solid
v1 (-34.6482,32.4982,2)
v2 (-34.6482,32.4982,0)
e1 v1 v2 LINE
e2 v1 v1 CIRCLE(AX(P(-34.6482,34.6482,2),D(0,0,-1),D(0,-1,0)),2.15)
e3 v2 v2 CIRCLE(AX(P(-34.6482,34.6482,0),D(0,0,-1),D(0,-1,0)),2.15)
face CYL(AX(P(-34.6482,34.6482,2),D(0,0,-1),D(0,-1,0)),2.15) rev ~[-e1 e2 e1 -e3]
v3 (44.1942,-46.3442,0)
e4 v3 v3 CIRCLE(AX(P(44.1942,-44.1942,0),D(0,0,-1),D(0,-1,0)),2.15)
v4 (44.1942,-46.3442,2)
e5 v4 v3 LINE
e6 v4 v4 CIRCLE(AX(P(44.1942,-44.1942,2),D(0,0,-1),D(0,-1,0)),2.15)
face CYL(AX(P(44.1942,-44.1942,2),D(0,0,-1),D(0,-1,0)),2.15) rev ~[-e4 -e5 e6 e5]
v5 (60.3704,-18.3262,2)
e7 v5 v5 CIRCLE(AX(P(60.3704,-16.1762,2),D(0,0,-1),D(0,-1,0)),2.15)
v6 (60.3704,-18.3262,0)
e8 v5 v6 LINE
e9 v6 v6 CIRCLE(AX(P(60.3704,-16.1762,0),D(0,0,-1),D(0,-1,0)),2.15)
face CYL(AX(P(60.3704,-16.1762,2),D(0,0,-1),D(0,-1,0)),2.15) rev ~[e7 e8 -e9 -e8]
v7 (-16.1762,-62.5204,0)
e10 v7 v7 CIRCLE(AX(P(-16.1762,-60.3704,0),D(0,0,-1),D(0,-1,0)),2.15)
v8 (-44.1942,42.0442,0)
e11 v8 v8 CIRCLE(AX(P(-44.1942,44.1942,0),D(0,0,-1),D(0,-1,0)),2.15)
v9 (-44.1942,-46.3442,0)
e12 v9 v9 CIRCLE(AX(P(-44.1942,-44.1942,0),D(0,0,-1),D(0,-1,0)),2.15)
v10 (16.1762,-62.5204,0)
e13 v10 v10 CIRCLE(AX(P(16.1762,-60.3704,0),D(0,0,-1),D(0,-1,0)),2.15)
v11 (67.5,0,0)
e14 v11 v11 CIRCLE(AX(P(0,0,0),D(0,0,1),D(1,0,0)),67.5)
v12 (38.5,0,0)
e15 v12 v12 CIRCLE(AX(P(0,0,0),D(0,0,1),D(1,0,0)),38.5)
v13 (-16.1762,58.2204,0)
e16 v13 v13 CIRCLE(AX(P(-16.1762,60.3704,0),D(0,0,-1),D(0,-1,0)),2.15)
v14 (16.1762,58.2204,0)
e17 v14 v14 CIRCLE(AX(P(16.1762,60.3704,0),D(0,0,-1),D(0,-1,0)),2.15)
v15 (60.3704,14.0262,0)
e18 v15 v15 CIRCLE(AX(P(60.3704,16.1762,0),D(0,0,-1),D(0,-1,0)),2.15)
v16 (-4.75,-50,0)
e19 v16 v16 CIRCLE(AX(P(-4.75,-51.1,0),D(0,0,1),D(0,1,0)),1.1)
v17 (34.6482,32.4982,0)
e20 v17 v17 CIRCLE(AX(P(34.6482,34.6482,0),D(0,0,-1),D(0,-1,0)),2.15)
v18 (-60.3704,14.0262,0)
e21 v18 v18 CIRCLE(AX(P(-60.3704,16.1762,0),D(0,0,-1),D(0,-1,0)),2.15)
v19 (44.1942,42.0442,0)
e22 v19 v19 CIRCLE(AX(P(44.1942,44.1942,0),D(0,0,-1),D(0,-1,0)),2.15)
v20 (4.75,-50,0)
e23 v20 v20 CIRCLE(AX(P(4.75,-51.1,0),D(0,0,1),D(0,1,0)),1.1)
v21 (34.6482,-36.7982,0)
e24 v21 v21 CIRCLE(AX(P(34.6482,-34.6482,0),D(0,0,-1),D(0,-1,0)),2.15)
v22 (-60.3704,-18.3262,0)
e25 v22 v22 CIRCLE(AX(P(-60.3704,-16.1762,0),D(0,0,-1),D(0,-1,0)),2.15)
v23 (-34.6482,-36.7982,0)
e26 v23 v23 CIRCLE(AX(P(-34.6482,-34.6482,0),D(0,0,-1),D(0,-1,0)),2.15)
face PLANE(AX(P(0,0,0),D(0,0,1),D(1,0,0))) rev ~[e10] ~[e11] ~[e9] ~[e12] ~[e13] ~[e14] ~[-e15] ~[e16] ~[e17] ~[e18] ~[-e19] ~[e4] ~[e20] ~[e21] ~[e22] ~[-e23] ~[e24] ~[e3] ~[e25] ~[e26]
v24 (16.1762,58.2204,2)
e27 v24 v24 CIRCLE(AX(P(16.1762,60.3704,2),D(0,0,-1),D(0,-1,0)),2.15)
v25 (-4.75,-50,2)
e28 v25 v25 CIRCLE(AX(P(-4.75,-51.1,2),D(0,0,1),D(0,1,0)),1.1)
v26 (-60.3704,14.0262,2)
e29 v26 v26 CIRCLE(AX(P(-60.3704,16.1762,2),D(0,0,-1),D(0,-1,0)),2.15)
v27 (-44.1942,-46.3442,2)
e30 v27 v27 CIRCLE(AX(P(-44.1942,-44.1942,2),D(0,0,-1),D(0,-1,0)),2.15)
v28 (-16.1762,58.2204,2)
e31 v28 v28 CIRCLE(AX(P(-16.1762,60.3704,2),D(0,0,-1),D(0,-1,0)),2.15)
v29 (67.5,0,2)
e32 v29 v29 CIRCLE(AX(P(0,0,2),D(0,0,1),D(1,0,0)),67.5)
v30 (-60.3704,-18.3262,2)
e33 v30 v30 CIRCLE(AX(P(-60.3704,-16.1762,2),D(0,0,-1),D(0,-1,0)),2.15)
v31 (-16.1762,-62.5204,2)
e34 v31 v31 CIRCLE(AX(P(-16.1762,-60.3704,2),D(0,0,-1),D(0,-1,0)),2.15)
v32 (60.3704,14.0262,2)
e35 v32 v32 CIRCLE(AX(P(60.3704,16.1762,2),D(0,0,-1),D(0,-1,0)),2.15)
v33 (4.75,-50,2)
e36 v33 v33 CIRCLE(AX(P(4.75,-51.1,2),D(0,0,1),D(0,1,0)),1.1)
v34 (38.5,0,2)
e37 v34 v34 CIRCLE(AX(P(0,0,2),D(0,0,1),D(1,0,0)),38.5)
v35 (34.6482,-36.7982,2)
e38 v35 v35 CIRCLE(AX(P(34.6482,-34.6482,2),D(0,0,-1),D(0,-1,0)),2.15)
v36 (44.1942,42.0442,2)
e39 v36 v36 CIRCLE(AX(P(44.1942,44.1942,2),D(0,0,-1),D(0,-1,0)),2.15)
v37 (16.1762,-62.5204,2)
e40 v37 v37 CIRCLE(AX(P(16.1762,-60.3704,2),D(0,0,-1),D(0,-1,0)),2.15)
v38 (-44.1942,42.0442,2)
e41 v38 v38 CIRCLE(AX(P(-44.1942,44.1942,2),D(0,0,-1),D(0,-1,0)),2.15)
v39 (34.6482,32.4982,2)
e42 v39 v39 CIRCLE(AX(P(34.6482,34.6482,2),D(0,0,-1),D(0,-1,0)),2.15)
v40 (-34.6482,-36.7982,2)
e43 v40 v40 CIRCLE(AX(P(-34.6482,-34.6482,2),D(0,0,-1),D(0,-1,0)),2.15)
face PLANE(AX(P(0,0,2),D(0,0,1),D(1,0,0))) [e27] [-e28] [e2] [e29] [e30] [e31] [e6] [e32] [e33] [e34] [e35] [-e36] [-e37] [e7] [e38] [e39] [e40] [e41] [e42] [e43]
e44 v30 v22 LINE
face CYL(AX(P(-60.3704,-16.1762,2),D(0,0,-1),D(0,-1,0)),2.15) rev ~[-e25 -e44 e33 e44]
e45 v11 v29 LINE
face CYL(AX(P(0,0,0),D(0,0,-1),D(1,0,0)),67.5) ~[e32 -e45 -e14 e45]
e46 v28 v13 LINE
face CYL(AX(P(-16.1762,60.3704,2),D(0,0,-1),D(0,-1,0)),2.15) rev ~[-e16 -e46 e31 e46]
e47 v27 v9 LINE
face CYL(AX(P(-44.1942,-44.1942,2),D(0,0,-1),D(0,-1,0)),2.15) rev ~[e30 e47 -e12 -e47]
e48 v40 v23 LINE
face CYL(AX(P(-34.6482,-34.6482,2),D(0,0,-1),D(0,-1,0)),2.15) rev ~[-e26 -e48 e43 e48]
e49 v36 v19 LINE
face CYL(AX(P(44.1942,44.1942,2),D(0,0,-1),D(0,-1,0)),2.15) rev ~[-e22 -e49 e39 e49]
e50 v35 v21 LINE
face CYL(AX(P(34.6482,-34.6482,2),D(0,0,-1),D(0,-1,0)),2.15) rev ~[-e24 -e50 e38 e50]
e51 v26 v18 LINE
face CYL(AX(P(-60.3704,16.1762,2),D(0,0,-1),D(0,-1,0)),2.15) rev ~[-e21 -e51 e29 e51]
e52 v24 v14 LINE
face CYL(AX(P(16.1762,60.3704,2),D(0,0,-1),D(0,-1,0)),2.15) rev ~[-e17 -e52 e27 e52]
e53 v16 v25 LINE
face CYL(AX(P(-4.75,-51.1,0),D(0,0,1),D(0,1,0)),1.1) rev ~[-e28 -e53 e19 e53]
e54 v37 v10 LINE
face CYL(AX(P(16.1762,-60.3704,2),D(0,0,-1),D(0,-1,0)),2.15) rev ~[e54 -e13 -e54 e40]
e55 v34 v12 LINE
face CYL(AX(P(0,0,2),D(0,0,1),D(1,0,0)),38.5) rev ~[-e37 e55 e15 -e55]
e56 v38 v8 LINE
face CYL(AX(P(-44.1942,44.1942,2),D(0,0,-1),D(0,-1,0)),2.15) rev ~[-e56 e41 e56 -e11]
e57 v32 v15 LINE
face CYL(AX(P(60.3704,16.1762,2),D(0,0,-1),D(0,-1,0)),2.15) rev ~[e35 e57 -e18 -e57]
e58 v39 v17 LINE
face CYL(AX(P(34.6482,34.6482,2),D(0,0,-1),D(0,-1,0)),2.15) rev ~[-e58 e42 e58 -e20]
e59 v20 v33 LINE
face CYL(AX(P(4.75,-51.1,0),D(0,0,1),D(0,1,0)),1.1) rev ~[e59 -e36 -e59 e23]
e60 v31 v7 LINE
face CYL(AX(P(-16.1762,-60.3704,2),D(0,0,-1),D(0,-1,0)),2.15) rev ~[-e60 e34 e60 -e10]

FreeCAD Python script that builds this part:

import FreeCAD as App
import Part
import Sketcher

V = App.Vector

doc = App.newDocument("Part")
body = doc.addObject("PartDesign::Body", "Body")

# Sketch on XY plane
sketch1 = body.newObject("Sketcher::SketchObject", "Sketch")
sketch1.AttachmentSupport = (doc.getObject("XY_Plane"), [""])
sketch1.MapMode = "FlatFace"
sketch1.addGeometry(Part.Circle(V(0, 0, 0), V(0, 0, 1), 68), False)
sketch1.addConstraint(Sketcher.Constraint("Coincident", 0, 3, -1, 1))
sketch1.addConstraint(Sketcher.Constraint("Diameter", 0, 135.0))
pad1 = body.newObject("PartDesign::Pad", "Pad")
pad1.Profile = sketch1
pad1.Length = 2

# Sketch on XY plane
sketch2 = body.newObject("Sketcher::SketchObject", "Sketch001")
sketch2.AttachmentSupport = (doc.getObject("XY_Plane"), [""])
sketch2.MapMode = "FlatFace"
sketch2.AttachmentOffset = App.Placement(V(0, 0, 2), App.Rotation())
sketch2.addGeometry(Part.Circle(V(0, 0, 0), V(0, 0, 1), 38), False)
sketch2.addConstraint(Sketcher.Constraint("Coincident", 0, 3, -1, 1))
sketch2.addConstraint(Sketcher.Constraint("Diameter", 0, 77.0))
pocket1 = body.newObject("PartDesign::Pocket", "Pocket")
pocket1.Profile = sketch2
pocket1.Type = "ThroughAll"

# Sketch on XY plane
sketch3 = body.newObject("Sketcher::SketchObject", "Sketch002")
sketch3.AttachmentSupport = (doc.getObject("XY_Plane"), [""])
sketch3.MapMode = "FlatFace"
sketch3.AttachmentOffset = App.Placement(V(0, 0, 2), App.Rotation())
sketch3.addGeometry(Part.Circle(V(16.2, 60.4, 0), V(0, 0, 1), 2.1), False)
sketch3.addGeometry(Part.Circle(V(-16.2, 60.4, 0), V(0, 0, 1), 2.1), False)
sketch3.addGeometry(Part.Circle(V(-44.2, 44.2, 0), V(0, 0, 1), 2.1), False)
sketch3.addGeometry(Part.Circle(V(-60.4, 16.2, 0), V(0, 0, 1), 2.1), False)
sketch3.addGeometry(Part.Circle(V(-60.4, -16.2, 0), V(0, 0, 1), 2.1), False)
sketch3.addGeometry(Part.Circle(V(-44.2, -44.2, 0), V(0, 0, 1), 2.1), False)
sketch3.addGeometry(Part.Circle(V(-16.2, -60.4, 0), V(0, 0, 1), 2.1), False)
sketch3.addGeometry(Part.Circle(V(16.2, -60.4, 0), V(0, 0, 1), 2.1), False)
sketch3.addGeometry(Part.Circle(V(44.2, -44.2, 0), V(0, 0, 1), 2.1), False)
sketch3.addGeometry(Part.Circle(V(60.4, -16.2, 0), V(0, 0, 1), 2.1), False)
sketch3.addGeometry(Part.Circle(V(60.4, 16.2, 0), V(0, 0, 1), 2.1), False)
sketch3.addGeometry(Part.Circle(V(44.2, 44.2, 0), V(0, 0, 1), 2.1), False)
sketch3.addConstraint(Sketcher.Constraint("Equal", 0, 1))
sketch3.addConstraint(Sketcher.Constraint("Equal", 1, 2))
sketch3.addConstraint(Sketcher.Constraint("Equal", 2, 3))
sketch3.addConstraint(Sketcher.Constraint("Equal", 3, 4))
sketch3.addConstraint(Sketcher.Constraint("Equal", 4, 5))
sketch3.addConstraint(Sketcher.Constraint("Equal", 5, 6))
sketch3.addConstraint(Sketcher.Constraint("Equal", 6, 7))
sketch3.addConstraint(Sketcher.Constraint("Equal", 7, 8))
sketch3.addConstraint(Sketcher.Constraint("Equal", 8, 9))
sketch3.addConstraint(Sketcher.Constraint("Equal", 9, 10))
sketch3.addConstraint(Sketcher.Constraint("Equal", 10, 11))
sketch3.addConstraint(Sketcher.Constraint("Symmetric", 0, 3, 6, 3, -1, 1))
sketch3.addConstraint(Sketcher.Constraint("Symmetric", 1, 3, 7, 3, -1, 1))
sketch3.addConstraint(Sketcher.Constraint("Symmetric", 2, 3, 8, 3, -1, 1))
sketch3.addConstraint(Sketcher.Constraint("Symmetric", 3, 3, 9, 3, -1, 1))
sketch3.addConstraint(Sketcher.Constraint("Symmetric", 4, 3, 10, 3, -1, 1))
sketch3.addConstraint(Sketcher.Constraint("Symmetric", 5, 3, 11, 3, -1, 1))
sketch3.addConstraint(Sketcher.Constraint("Symmetric", 0, 3, 1, 3, -2))
sketch3.addConstraint(Sketcher.Constraint("Symmetric", 5, 3, 8, 3, -2))
sketch3.addConstraint(Sketcher.Constraint("Symmetric", 4, 3, 9, 3, -2))
sketch3.addConstraint(Sketcher.Constraint("Diameter", 0, 4.3))
sketch3.addConstraint(Sketcher.Constraint("DistanceX", 2, 3, 1, 3, 28.018))
sketch3.addConstraint(Sketcher.Constraint("DistanceY", 3, 3, 2, 3, 28.018))
sketch3.addConstraint(Sketcher.Constraint("DistanceX", -1, 1, 0, 3, 16.1762))
sketch3.addConstraint(Sketcher.Constraint("DistanceY", -1, 1, 0, 3, 60.3704))
sketch3.addConstraint(Sketcher.Constraint("DistanceY", -1, 1, 2, 3, 44.1942))
sketch3.addConstraint(Sketcher.Constraint("DistanceX", 3, 3, -1, 1, 60.3704))
doc.recompute()
hole = body.newObject("PartDesign::Hole", "Hole")
hole.Profile = sketch3
hole.ThreadType = "None"
hole.Diameter = 4.3
hole.DepthType = "ThroughAll"

# Sketch on XY plane
sketch4 = body.newObject("Sketcher::SketchObject", "Sketch003")
sketch4.AttachmentSupport = (doc.getObject("XY_Plane"), [""])
sketch4.MapMode = "FlatFace"
sketch4.AttachmentOffset = App.Placement(V(0, 0, 2), App.Rotation())
sketch4.addGeometry(Part.Circle(V(-34.6, 34.6, 0), V(0, 0, 1), 2.1), False)
sketch4.addGeometry(Part.Circle(V(-34.6, -34.6, 0), V(0, 0, 1), 2.1), False)
sketch4.addGeometry(Part.Circle(V(34.6, -34.6, 0), V(0, 0, 1), 2.1), False)
sketch4.addGeometry(Part.Circle(V(34.6, 34.6, 0), V(0, 0, 1), 2.1), False)
sketch4.addConstraint(Sketcher.Constraint("Equal", 0, 1))
sketch4.addConstraint(Sketcher.Constraint("Equal", 1, 2))
sketch4.addConstraint(Sketcher.Constraint("Equal", 2, 3))
sketch4.addConstraint(Sketcher.Constraint("Symmetric", 0, 3, 2, 3, -1, 1))
sketch4.addConstraint(Sketcher.Constraint("Symmetric", 1, 3, 3, 3, -1, 1))
sketch4.addConstraint(Sketcher.Constraint("Symmetric", 1, 3, 2, 3, -2))
sketch4.addConstraint(Sketcher.Constraint("Diameter", 0, 4.3))
sketch4.addConstraint(Sketcher.Constraint("DistanceX", 0, 3, -1, 1, 34.6482))
sketch4.addConstraint(Sketcher.Constraint("DistanceY", -1, 1, 0, 3, 34.6482))
doc.recompute()
hole2 = body.newObject("PartDesign::Hole", "Hole001")
hole2.Profile = sketch4
hole2.ThreadType = "None"
hole2.Diameter = 4.3
hole2.DepthType = "ThroughAll"

# Sketch on XY plane
sketch5 = body.newObject("Sketcher::SketchObject", "Sketch004")
sketch5.AttachmentSupport = (doc.getObject("XY_Plane"), [""])
sketch5.MapMode = "FlatFace"
sketch5.addGeometry(Part.Circle(V(4.8, -51.1, 0), V(0, 0, 1), 1.1), False)
sketch5.addGeometry(Part.Circle(V(-4.8, -51.1, 0), V(0, 0, 1), 1.1), False)
sketch5.addConstraint(Sketcher.Constraint("Equal", 0, 1))
sketch5.addConstraint(Sketcher.Constraint("Symmetric", 0, 3, 1, 3, -2))
sketch5.addConstraint(Sketcher.Constraint("Diameter", 0, 2.2))
sketch5.addConstraint(Sketcher.Constraint("DistanceY", 0, 3, -1, 1, 51.1))
sketch5.addConstraint(Sketcher.Constraint("DistanceX", 1, 3, 0, 3, 9.5))
doc.recompute()
hole3 = body.newObject("PartDesign::Hole", "Hole002")
hole3.Profile = sketch5
hole3.ThreadType = "None"
hole3.Diameter = 2.2
hole3.DepthType = "ThroughAll"
hole3.Reversed = True

doc.recompute()
